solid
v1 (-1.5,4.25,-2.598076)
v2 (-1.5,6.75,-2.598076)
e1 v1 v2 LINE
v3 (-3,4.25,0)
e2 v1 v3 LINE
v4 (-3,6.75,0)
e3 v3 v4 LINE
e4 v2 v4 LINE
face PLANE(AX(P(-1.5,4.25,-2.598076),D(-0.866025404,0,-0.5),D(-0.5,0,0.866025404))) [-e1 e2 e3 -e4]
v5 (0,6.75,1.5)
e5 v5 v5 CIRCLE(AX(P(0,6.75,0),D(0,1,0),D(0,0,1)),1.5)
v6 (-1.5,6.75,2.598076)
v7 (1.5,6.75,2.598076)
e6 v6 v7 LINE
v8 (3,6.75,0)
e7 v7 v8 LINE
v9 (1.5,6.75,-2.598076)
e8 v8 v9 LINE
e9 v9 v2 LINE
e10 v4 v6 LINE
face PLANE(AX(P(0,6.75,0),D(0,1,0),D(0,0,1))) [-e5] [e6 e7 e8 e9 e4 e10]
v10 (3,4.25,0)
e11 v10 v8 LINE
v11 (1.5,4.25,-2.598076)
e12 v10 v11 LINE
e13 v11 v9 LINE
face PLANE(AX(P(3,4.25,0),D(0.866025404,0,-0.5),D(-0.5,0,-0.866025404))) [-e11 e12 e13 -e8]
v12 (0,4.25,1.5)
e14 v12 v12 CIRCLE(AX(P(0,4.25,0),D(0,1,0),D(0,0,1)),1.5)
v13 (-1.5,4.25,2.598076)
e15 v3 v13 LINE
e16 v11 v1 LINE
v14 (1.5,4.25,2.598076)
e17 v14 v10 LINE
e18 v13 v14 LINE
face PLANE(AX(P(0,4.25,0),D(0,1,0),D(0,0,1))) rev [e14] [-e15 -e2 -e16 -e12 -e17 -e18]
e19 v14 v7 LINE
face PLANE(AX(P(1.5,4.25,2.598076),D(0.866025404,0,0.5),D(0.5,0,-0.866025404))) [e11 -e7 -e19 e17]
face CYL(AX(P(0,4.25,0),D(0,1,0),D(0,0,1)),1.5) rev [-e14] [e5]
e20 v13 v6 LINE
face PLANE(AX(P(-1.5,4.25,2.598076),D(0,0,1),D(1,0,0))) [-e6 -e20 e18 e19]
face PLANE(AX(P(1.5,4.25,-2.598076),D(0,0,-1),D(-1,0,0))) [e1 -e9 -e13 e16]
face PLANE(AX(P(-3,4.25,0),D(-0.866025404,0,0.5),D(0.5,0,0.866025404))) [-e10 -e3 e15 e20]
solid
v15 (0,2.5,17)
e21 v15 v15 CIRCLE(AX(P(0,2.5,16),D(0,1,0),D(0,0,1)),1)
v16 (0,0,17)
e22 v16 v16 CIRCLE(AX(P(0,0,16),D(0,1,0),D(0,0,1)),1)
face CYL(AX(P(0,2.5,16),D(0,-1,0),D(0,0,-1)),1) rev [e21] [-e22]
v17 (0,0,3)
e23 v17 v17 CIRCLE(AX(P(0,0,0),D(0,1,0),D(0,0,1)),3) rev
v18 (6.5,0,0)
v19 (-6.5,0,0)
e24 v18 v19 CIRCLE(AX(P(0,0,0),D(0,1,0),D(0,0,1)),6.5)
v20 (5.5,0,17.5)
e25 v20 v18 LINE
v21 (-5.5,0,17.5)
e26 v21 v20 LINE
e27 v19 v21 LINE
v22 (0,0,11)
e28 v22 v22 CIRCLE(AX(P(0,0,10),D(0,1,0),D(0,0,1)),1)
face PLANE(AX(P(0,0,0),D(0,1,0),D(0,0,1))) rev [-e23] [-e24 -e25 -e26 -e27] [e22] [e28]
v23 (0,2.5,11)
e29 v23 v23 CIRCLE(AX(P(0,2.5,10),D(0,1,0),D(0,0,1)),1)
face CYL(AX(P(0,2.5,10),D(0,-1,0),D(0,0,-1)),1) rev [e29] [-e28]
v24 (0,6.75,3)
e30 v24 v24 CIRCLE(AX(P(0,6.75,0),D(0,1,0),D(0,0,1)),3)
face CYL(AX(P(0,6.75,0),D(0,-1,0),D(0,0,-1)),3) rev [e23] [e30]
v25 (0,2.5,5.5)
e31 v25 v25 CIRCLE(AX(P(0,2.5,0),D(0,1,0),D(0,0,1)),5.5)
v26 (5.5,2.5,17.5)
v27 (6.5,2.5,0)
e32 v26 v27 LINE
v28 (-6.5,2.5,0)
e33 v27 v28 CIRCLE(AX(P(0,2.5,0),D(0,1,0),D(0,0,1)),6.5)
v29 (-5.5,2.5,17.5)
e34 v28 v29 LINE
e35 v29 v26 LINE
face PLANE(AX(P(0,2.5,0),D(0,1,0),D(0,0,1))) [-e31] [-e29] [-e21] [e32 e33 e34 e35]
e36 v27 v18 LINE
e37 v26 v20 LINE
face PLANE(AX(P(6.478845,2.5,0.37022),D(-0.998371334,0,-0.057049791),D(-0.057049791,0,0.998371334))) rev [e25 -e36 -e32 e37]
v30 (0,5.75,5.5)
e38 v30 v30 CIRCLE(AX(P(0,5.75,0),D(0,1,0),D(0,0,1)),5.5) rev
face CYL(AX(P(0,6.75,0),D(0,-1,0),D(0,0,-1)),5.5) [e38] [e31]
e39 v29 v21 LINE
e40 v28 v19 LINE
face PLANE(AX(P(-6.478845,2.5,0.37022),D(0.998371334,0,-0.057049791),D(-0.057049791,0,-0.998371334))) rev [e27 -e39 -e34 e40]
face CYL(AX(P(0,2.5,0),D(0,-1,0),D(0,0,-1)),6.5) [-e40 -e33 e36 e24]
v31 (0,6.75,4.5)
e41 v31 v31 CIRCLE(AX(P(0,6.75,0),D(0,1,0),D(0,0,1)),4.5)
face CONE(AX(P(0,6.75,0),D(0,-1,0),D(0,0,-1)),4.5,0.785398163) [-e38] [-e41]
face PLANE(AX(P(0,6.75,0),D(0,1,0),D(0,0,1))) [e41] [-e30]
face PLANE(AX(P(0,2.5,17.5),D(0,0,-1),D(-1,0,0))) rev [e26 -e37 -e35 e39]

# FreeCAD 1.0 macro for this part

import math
import FreeCAD as App
import Part
import Sketcher
Q = App.Units.Quantity


def edges_at(feature, points):
    """Names of the edges that pass closest to the given points."""
    edges = feature.Shape.Edges
    near = lambda p: min(range(len(edges)), key=lambda i: edges[i].distToShape(Part.Vertex(*p))[0])
    return sorted({f"Edge{near(p) + 1}" for p in points})

doc = App.newDocument("Part")
body = doc.addObject("PartDesign::Body", "Body")

# Sketch on XZ plane
sketch1 = body.newObject("Sketcher::SketchObject", "Sketch")
sketch1.AttachmentSupport = (doc.getObject("XZ_Plane"), [""])
sketch1.MapMode = "FlatFace"
sketch1.addGeometry([
    Part.ArcOfCircle(Part.Circle(App.Vector(0, 0, 0), App.Vector(0, 0, 1), 6.5), math.radians(180), math.radians(360)),  # 0
    Part.LineSegment(App.Vector(-6.5, 0, 0), App.Vector(-6.5, 0.7, 0)),  # 1
    Part.LineSegment(App.Vector(-6.5, 0.7, 0), App.Vector(-5.5, 17.5, 0)),  # 2
    Part.LineSegment(App.Vector(-5.5, 17.5, 0), App.Vector(5.5, 17.5, 0)),  # 3
    Part.LineSegment(App.Vector(5.5, 17.5, 0), App.Vector(6.5, 0.7, 0)),  # 4
    Part.LineSegment(App.Vector(6.5, 0.7, 0), App.Vector(6.5, 0, 0)),  # 5
    Part.Circle(App.Vector(0, 16, 0), App.Vector(0, 0, 1), 1),  # 6
    Part.Circle(App.Vector(0, 10, 0), App.Vector(0, 0, 1), 1),  # 7
], False)
sketch1.addConstraint([
    Sketcher.Constraint("Coincident", 0, 1, 1, 1),
    Sketcher.Constraint("Coincident", 1, 2, 2, 1),
    Sketcher.Constraint("Coincident", 2, 2, 3, 1),
    Sketcher.Constraint("Coincident", 3, 2, 4, 1),
    Sketcher.Constraint("Coincident", 4, 2, 5, 1),
    Sketcher.Constraint("Coincident", 5, 2, 0, 2),
    Sketcher.Constraint("Horizontal", 3),
    Sketcher.Constraint("Coincident", 0, 3, -1, 1),
    Sketcher.Constraint("Equal", 6, 7),
    Sketcher.Constraint("Symmetric", 1, 2, 4, 2, -2),
    Sketcher.Constraint("PointOnObject", 6, 3, -2),
    Sketcher.Constraint("PointOnObject", 7, 3, -2),
    Sketcher.Constraint("PointOnObject", 0, 1, -1),
    Sketcher.Constraint("PointOnObject", 5, 2, -1),
    Sketcher.Constraint("Parallel", 1, 2),
    Sketcher.Constraint("Parallel", 4, 5),
    Sketcher.Constraint("Diameter", 6, 2.0),
    Sketcher.Constraint("Radius", 0, 6.5),
    Sketcher.Constraint("DistanceX", 3, 1, 3, 2, 11.0),
    Sketcher.Constraint("DistanceY", -1, 1, 6, 3, 16.0),
    Sketcher.Constraint("DistanceY", -1, 1, 7, 3, 10.0),
    Sketcher.Constraint("DistanceY", -1, 1, 2, 2, 17.5),
    Sketcher.Constraint("Distance", 2, 16.786901),
])
pad1 = body.newObject("PartDesign::Pad", "Pad")
pad1.Profile = sketch1
pad1.Length = 2.5
pad1.Reversed = True

# Sketch on XZ plane
sketch2 = body.newObject("Sketcher::SketchObject", "Sketch001")
sketch2.AttachmentSupport = (doc.getObject("XZ_Plane"), [""])
sketch2.MapMode = "FlatFace"
sketch2.AttachmentOffset = App.Placement(App.Vector(0, 0, -2.5), App.Rotation())
sketch2.addGeometry([
    Part.Circle(App.Vector(0, 0, 0), App.Vector(0, 0, 1), 5.5),
    Part.Circle(App.Vector(0, 0, 0), App.Vector(0, 0, 1), 3),
], False)
sketch2.addConstraint([
    Sketcher.Constraint("Coincident", 0, 3, -1, 1),
    Sketcher.Constraint("Coincident", 1, 3, -1, 1),
    Sketcher.Constraint("Diameter", 0, 11.0),
    Sketcher.Constraint("Diameter", 1, 6.0),
])
pad2 = body.newObject("PartDesign::Pad", "Pad001")
pad2.Profile = sketch2
pad2.Length = 4.25
pad2.Reversed = True

# Sketch on XZ plane
sketch3 = body.newObject("Sketcher::SketchObject", "Sketch002")
sketch3.AttachmentSupport = (doc.getObject("XZ_Plane"), [""])
sketch3.MapMode = "FlatFace"
sketch3.AttachmentOffset = App.Placement(App.Vector(0, 0, -2.5), App.Rotation())
sketch3.addGeometry(Part.Circle(App.Vector(0, 0, 0), App.Vector(0, 0, 1), 3), False)
sketch3.addConstraint([
    Sketcher.Constraint("Coincident", 0, 3, -1, 1),
    Sketcher.Constraint("Diameter", 0, 6.0),
])
pocket1 = body.newObject("PartDesign::Pocket", "Pocket")
pocket1.Profile = sketch3
pocket1.Type = "UpToFirst"
pocket1.Reversed = True
doc.recompute()

chamfer = body.newObject("PartDesign::Chamfer", "Chamfer")
chamfer.Base = (pocket1, edges_at(pocket1, [(-5.5, 6.75, 0)]))
chamfer.Size = 1
body2 = doc.addObject("PartDesign::Body", "Body001")

# Sketch on XZ plane
sketch4 = body2.newObject("Sketcher::SketchObject", "Sketch003")
sketch4.AttachmentSupport = (doc.getObject("XZ_Plane001"), [""])
sketch4.MapMode = "FlatFace"
sketch4.AttachmentOffset = App.Placement(App.Vector(0, 0, -6.75), App.Rotation())
sketch4.addGeometry([
    Part.LineSegment(App.Vector(3, 0, 0), App.Vector(1.5, -2.6, 0)),  # 0
    Part.LineSegment(App.Vector(1.5, -2.6, 0), App.Vector(-1.5, -2.6, 0)),  # 1
    Part.LineSegment(App.Vector(-1.5, -2.6, 0), App.Vector(-3, 0, 0)),  # 2
    Part.LineSegment(App.Vector(-3, 0, 0), App.Vector(-1.5, 2.6, 0)),  # 3
    Part.LineSegment(App.Vector(-1.5, 2.6, 0), App.Vector(1.5, 2.6, 0)),  # 4
    Part.LineSegment(App.Vector(1.5, 2.6, 0), App.Vector(3, 0, 0)),  # 5
    Part.Circle(App.Vector(0, 0, 0), App.Vector(0, 0, 1), 1.5),  # 6
], False)
sketch4.addConstraint([
    Sketcher.Constraint("Coincident", 0, 2, 1, 1),
    Sketcher.Constraint("Coincident", 1, 2, 2, 1),
    Sketcher.Constraint("Coincident", 2, 2, 3, 1),
    Sketcher.Constraint("Coincident", 3, 2, 4, 1),
    Sketcher.Constraint("Coincident", 4, 2, 5, 1),
    Sketcher.Constraint("Coincident", 5, 2, 0, 1),
    Sketcher.Constraint("Horizontal", 1),
    Sketcher.Constraint("Horizontal", 4),
    Sketcher.Constraint("Coincident", 6, 3, -1, 1),
    Sketcher.Constraint("Symmetric", 0, 2, 3, 2, -1, 1),
    Sketcher.Constraint("Symmetric", 2, 2, 5, 2, -1, 1),
    Sketcher.Constraint("PointOnObject", 2, 2, -1),
    Sketcher.Constraint("Parallel", 2, 5),
    Sketcher.Constraint("Vertical", 1, 2, 3, 2),
    Sketcher.Constraint("Diameter", 6, 3.0),
    Sketcher.Constraint("DistanceX", 1, 2, 1, 1, 3.0),
    Sketcher.Constraint("Angle", 0, Q("-120 deg")),
    Sketcher.Constraint("Distance", 0, 3.0),
])
pad3 = body2.newObject("PartDesign::Pad", "Pad002")
pad3.Profile = sketch4
pad3.Length = 2.5

doc.recompute()
